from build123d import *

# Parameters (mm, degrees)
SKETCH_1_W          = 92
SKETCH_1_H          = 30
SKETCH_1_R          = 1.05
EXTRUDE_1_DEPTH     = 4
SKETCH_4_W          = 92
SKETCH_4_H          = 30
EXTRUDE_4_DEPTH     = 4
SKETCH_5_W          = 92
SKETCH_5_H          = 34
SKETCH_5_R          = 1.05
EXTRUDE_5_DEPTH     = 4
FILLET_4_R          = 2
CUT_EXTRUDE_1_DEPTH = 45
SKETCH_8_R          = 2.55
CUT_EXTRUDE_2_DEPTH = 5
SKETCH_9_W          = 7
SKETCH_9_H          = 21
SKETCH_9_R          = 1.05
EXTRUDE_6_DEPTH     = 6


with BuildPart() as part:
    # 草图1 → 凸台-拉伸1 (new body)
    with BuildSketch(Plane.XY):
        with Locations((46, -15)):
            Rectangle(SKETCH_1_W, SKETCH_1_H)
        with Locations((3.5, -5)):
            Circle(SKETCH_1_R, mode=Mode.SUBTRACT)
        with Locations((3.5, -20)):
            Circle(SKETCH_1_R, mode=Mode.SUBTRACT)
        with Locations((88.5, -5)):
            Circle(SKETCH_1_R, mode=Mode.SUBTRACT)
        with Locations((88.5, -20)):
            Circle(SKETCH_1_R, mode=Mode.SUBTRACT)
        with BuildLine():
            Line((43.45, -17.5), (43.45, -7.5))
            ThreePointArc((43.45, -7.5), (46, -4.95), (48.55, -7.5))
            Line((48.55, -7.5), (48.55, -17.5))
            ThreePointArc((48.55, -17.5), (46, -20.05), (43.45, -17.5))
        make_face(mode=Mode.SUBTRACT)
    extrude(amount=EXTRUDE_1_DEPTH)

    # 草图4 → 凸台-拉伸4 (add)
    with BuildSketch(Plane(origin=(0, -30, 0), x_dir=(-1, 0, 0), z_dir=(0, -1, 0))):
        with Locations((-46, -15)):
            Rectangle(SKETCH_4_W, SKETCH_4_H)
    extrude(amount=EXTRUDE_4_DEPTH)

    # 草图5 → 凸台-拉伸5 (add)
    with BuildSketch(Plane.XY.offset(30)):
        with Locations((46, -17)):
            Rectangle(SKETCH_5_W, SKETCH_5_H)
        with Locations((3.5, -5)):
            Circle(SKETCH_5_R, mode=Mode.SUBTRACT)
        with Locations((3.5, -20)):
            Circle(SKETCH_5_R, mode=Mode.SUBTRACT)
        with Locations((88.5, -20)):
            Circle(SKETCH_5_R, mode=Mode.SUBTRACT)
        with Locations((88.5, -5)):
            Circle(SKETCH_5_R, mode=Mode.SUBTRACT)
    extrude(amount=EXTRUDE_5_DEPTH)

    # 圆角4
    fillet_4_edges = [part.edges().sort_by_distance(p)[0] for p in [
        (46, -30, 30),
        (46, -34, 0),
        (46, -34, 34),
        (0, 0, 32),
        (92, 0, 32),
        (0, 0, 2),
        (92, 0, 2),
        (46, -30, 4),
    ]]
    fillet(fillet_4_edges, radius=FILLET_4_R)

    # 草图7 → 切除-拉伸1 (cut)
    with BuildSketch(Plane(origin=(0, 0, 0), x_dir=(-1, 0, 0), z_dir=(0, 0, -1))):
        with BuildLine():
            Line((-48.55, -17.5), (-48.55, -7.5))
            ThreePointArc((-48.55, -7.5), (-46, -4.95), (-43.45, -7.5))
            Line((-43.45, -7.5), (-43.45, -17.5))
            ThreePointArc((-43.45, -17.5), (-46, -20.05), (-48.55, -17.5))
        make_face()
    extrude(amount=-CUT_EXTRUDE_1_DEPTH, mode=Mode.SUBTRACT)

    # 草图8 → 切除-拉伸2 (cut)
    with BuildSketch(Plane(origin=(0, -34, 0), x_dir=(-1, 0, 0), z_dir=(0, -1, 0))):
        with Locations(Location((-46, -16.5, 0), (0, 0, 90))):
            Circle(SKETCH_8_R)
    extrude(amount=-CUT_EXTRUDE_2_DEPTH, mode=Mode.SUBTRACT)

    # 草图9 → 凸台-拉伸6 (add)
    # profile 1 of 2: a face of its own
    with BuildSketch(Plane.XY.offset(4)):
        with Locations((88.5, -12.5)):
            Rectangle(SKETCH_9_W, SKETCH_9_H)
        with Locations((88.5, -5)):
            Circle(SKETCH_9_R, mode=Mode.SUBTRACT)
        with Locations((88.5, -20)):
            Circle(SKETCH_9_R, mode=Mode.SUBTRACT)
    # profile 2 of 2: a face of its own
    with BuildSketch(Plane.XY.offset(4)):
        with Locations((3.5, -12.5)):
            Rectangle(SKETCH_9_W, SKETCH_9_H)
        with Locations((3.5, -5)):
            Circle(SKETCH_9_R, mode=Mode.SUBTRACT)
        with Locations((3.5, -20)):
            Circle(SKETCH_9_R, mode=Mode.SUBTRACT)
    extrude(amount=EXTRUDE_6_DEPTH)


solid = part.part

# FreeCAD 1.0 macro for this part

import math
import FreeCAD as App
import Part
import Sketcher
from FreeCAD import Vector
Q = App.Units.Quantity


def edges_at(feature, points):
    """Names of the edges that pass closest to the given points."""
    edges = feature.Shape.Edges
    near = lambda p: min(range(len(edges)), key=lambda i: edges[i].distToShape(Part.Vertex(*p))[0])
    return sorted({f"Edge{near(p) + 1}" for p in points})


def add_polygon(sketch, points):
    """Adds a closed chain of lines whose ends are joined by coincident constraints."""
    first, n = sketch.GeometryCount, len(points)
    for a, b in zip(points, points[1:] + points[:1]):
        sketch.addGeometry(Part.LineSegment(App.Vector(*a, 0), App.Vector(*b, 0)), False)
    for i in range(n):
        sketch.addConstraint(Sketcher.Constraint("Coincident", first + i, 2, first + (i + 1) % n, 1))

doc = App.newDocument("Part")
body = doc.addObject("PartDesign::Body", "Body")

sketch1 = doc.addObject("Sketcher::SketchObject", "Sketch")
body.addObject(sketch1)
sketch1.AttachmentSupport = (doc.XY_Plane, [""])
sketch1.MapMode = "FlatFace"
add_polygon(sketch1, [(0, 0), (0, -30), (92, -30), (92, 0)])
sketch1.addGeometry(Part.Circle(Vector(3.5, -20, 0), Vector(0, 0, 1), 1.1), False)
sketch1.addGeometry(Part.Circle(Vector(88.5, -20, 0), Vector(0, 0, 1), 1.1), False)
sketch1.addGeometry(Part.Circle(Vector(3.5, -5, 0), Vector(0, 0, 1), 1.1), False)
sketch1.addGeometry(Part.ArcOfCircle(Part.Circle(Vector(46, -17.5, 0), Vector(0, 0, 1), 2.5), math.radians(180), math.radians(360)), False)
sketch1.addGeometry(Part.LineSegment(Vector(43.5, -17.5, 0), Vector(43.5, -7.5, 0)), False)
sketch1.addGeometry(Part.ArcOfCircle(Part.Circle(Vector(46, -7.5, 0), Vector(0, 0, 1), 2.5), math.radians(0), math.radians(180)), False)
sketch1.addGeometry(Part.LineSegment(Vector(48.5, -7.5, 0), Vector(48.5, -17.5, 0)), False)
sketch1.addGeometry(Part.Circle(Vector(88.5, -5, 0), Vector(0, 0, 1), 1.1), False)
sketch1.addConstraint([
    Sketcher.Constraint("Tangent", 7, 1, 8, 1),
    Sketcher.Constraint("Tangent", 8, 2, 9, 2),
    Sketcher.Constraint("Tangent", 9, 1, 10, 1),
    Sketcher.Constraint("Tangent", 10, 2, 7, 2),
    Sketcher.Constraint("Vertical", 0),
    Sketcher.Constraint("Horizontal", 1),
    Sketcher.Constraint("Vertical", 2),
    Sketcher.Constraint("Horizontal", 3),
    Sketcher.Constraint("Vertical", 8),
    Sketcher.Constraint("Vertical", 10),
    Sketcher.Constraint("Coincident", 3, 2, -1, 1),
    Sketcher.Constraint("Equal", 4, 5),
    Sketcher.Constraint("Equal", 5, 6),
    Sketcher.Constraint("Equal", 6, 11),
    Sketcher.Constraint("Horizontal", 4, 3, 5, 3),
    Sketcher.Constraint("Horizontal", 6, 3, 11, 3),
    Sketcher.Constraint("Vertical", 4, 3, 6, 3),
    Sketcher.Constraint("Vertical", 5, 3, 11, 3),
    Sketcher.Constraint("Diameter", 4, Q("2.1 mm")),
    Sketcher.Constraint("DistanceX", 1, 1, 1, 2, Q("92 mm")),
    Sketcher.Constraint("DistanceY", 0, 2, 0, 1, Q("30 mm")),
    Sketcher.Constraint("DistanceY", 8, 1, 8, 2, Q("10 mm")),
    Sketcher.Constraint("Radius", 7, Q("2.55 mm")),
    Sketcher.Constraint("DistanceY", 4, 3, -1, 1, Q("20 mm")),
    Sketcher.Constraint("DistanceY", 6, 3, -1, 1, Q("5 mm")),
    Sketcher.Constraint("DistanceX", -1, 1, 7, 3, Q("46 mm")),
    Sketcher.Constraint("DistanceX", 4, 3, 5, 3, Q("85 mm")),
    Sketcher.Constraint("DistanceX", -1, 1, 4, 3, Q("3.5 mm")),
    Sketcher.Constraint("DistanceY", 7, 3, -1, 1, Q("17.5 mm")),
])
pad1 = doc.addObject("PartDesign::Pad", "Pad")
body.addObject(pad1)
pad1.Profile = sketch1
pad1.Length = 4

sketch2 = doc.addObject("Sketcher::SketchObject", "Sketch001")
body.addObject(sketch2)
sketch2.AttachmentSupport = (doc.XZ_Plane, [""])
sketch2.MapMode = "FlatFace"
sketch2.AttachmentOffset = App.Placement(Vector(0, 0, 30), App.Rotation())
add_polygon(sketch2, [(92, 0), (92, 30), (0, 30), (0, 0)])
sketch2.addConstraint([
    Sketcher.Constraint("Vertical", 0),
    Sketcher.Constraint("Horizontal", 1),
    Sketcher.Constraint("Vertical", 2),
    Sketcher.Constraint("Horizontal", 3),
    Sketcher.Constraint("Coincident", 2, 2, -1, 1),
    Sketcher.Constraint("DistanceX", 1, 2, 1, 1, Q("92 mm")),
    Sketcher.Constraint("DistanceY", 0, 1, 0, 2, Q("30 mm")),
])
pad2 = doc.addObject("PartDesign::Pad", "Pad001")
body.addObject(pad2)
pad2.Profile = sketch2
pad2.Length = 4

sketch3 = doc.addObject("Sketcher::SketchObject", "Sketch002")
body.addObject(sketch3)
sketch3.AttachmentSupport = (doc.XY_Plane, [""])
sketch3.MapMode = "FlatFace"
sketch3.AttachmentOffset = App.Placement(Vector(0, 0, 30), App.Rotation())
add_polygon(sketch3, [(0, 0), (0, -34), (92, -34), (92, 0)])
sketch3.addGeometry(Part.Circle(Vector(3.5, -20, 0), Vector(0, 0, 1), 1.1), False)
sketch3.addGeometry(Part.Circle(Vector(88.5, -20, 0), Vector(0, 0, 1), 1.1), False)
sketch3.addGeometry(Part.Circle(Vector(3.5, -5, 0), Vector(0, 0, 1), 1.1), False)
sketch3.addGeometry(Part.Circle(Vector(88.5, -5, 0), Vector(0, 0, 1), 1.1), False)
sketch3.addConstraint([
    Sketcher.Constraint("Vertical", 0),
    Sketcher.Constraint("Horizontal", 1),
    Sketcher.Constraint("Vertical", 2),
    Sketcher.Constraint("Horizontal", 3),
    Sketcher.Constraint("Coincident", 3, 2, -1, 1),
    Sketcher.Constraint("Equal", 4, 5),
    Sketcher.Constraint("Equal", 5, 6),
    Sketcher.Constraint("Equal", 6, 7),
    Sketcher.Constraint("Horizontal", 4, 3, 5, 3),
    Sketcher.Constraint("Horizontal", 6, 3, 7, 3),
    Sketcher.Constraint("Vertical", 4, 3, 6, 3),
    Sketcher.Constraint("Vertical", 5, 3, 7, 3),
    Sketcher.Constraint("Diameter", 4, Q("2.1 mm")),
    Sketcher.Constraint("DistanceX", 1, 1, 1, 2, Q("92 mm")),
    Sketcher.Constraint("DistanceY", 0, 2, 0, 1, Q("34 mm")),
    Sketcher.Constraint("DistanceY", 4, 3, -1, 1, Q("20 mm")),
    Sketcher.Constraint("DistanceY", 6, 3, -1, 1, Q("5 mm")),
    Sketcher.Constraint("DistanceX", 4, 3, 5, 3, Q("85 mm")),
    Sketcher.Constraint("DistanceX", -1, 1, 4, 3, Q("3.5 mm")),
])
pad3 = doc.addObject("PartDesign::Pad", "Pad002")
body.addObject(pad3)
pad3.Profile = sketch3
pad3.Length = 4
doc.recompute()

fillet = doc.addObject("PartDesign::Fillet", "Fillet")
body.addObject(fillet)
fillet.Base = (pad3, edges_at(pad3, [
    (46, -30, 30),
    (46, -34, 0),
    (46, -34, 34),
    (0, 0, 32),
    (92, 0, 32),
    (0, 0, 2),
    (92, 0, 2),
    (46, -30, 4),
]))
fillet.Radius = 2

sketch4 = doc.addObject("Sketcher::SketchObject", "Sketch003")
body.addObject(sketch4)
sketch4.AttachmentSupport = (doc.XY_Plane, [""])
sketch4.MapMode = "FlatFace"
sketch4.addGeometry([
    Part.LineSegment(Vector(48.5, -7.5, 0), Vector(48.5, -17.5, 0)),
    Part.ArcOfCircle(Part.Circle(Vector(46, -17.5, 0), Vector(0, 0, 1), 2.5), math.radians(180), math.radians(360)),
    Part.LineSegment(Vector(43.5, -17.5, 0), Vector(43.5, -7.5, 0)),
    Part.ArcOfCircle(Part.Circle(Vector(46, -7.5, 0), Vector(0, 0, 1), 2.5), math.radians(0), math.radians(180)),
], False)
sketch4.addConstraint([
    Sketcher.Constraint("Tangent", 0, 2, 1, 2),
    Sketcher.Constraint("Tangent", 1, 1, 2, 1),
    Sketcher.Constraint("Tangent", 2, 2, 3, 2),
    Sketcher.Constraint("Tangent", 3, 1, 0, 1),
    Sketcher.Constraint("Vertical", 0),
    Sketcher.Constraint("Vertical", 2),
    Sketcher.Constraint("DistanceY", 0, 2, 0, 1, Q("10 mm")),
    Sketcher.Constraint("Radius", 1, Q("2.55 mm")),
    Sketcher.Constraint("DistanceX", -1, 1, 1, 3, Q("46 mm")),
    Sketcher.Constraint("DistanceY", 1, 3, -1, 1, Q("17.5 mm")),
])
pocket1 = doc.addObject("PartDesign::Pocket", "Pocket")
body.addObject(pocket1)
pocket1.Profile = sketch4
pocket1.Length = 45
pocket1.Reversed = True

sketch5 = doc.addObject("Sketcher::SketchObject", "Sketch004")
body.addObject(sketch5)
sketch5.AttachmentSupport = (doc.XZ_Plane, [""])
sketch5.MapMode = "FlatFace"
sketch5.AttachmentOffset = App.Placement(Vector(0, 0, 34), App.Rotation())
sketch5.addGeometry(Part.Circle(Vector(46, 16.5, 0), Vector(0, 0, 1), 2.5), False)
sketch5.addConstraint([
    Sketcher.Constraint("Diameter", 0, Q("5.1 mm")),
    Sketcher.Constraint("DistanceX", -1, 1, 0, 3, Q("46 mm")),
    Sketcher.Constraint("DistanceY", -1, 1, 0, 3, Q("16.5 mm")),
])
pocket2 = doc.addObject("PartDesign::Pocket", "Pocket001")
body.addObject(pocket2)
pocket2.Profile = sketch5
pocket2.Length = 5

sketch6 = doc.addObject("Sketcher::SketchObject", "Sketch005")
body.addObject(sketch6)
sketch6.AttachmentSupport = (doc.XY_Plane, [""])
sketch6.MapMode = "FlatFace"
sketch6.AttachmentOffset = App.Placement(Vector(0, 0, 4), App.Rotation())
add_polygon(sketch6, [(85, -2), (85, -23), (92, -23), (92, -2)])
sketch6.addGeometry(Part.Circle(Vector(88.5, -20, 0), Vector(0, 0, 1), 1.1), False)
sketch6.addGeometry(Part.Circle(Vector(88.5, -5, 0), Vector(0, 0, 1), 1.1), False)
add_polygon(sketch6, [(0, -2), (0, -23), (7, -23), (7, -2)])
sketch6.addGeometry(Part.Circle(Vector(3.5, -20, 0), Vector(0, 0, 1), 1.1), False)
sketch6.addGeometry(Part.Circle(Vector(3.5, -5, 0), Vector(0, 0, 1), 1.1), False)
sketch6.addConstraint([
    Sketcher.Constraint("Vertical", 0),
    Sketcher.Constraint("Horizontal", 1),
    Sketcher.Constraint("Vertical", 2),
    Sketcher.Constraint("Horizontal", 3),
    Sketcher.Constraint("Vertical", 6),
    Sketcher.Constraint("Horizontal", 7),
    Sketcher.Constraint("Vertical", 8),
    Sketcher.Constraint("Horizontal", 9),
    Sketcher.Constraint("Equal", 4, 5),
    Sketcher.Constraint("Equal", 5, 10),
    Sketcher.Constraint("Equal", 10, 11),
    Sketcher.Constraint("PointOnObject", 6, 2, -2),
    Sketcher.Constraint("Horizontal", 4, 3, 10, 3),
    Sketcher.Constraint("Horizontal", 5, 3, 11, 3),
    Sketcher.Constraint("Horizontal", 1, 2, 6, 2),
    Sketcher.Constraint("Horizontal", 3, 2, 8, 2),
    Sketcher.Constraint("Vertical", 4, 3, 5, 3),
    Sketcher.Constraint("Vertical", 10, 3, 11, 3),
    Sketcher.Constraint("Equal", 3, 7),
    Sketcher.Constraint("Diameter", 4, Q("2.1 mm")),
    Sketcher.Constraint("DistanceX", 1, 1, 1, 2, Q("7 mm")),
    Sketcher.Constraint("DistanceY", 0, 2, 0, 1, Q("21 mm")),
    Sketcher.Constraint("DistanceY", 4, 3, -1, 1, Q("20 mm")),
    Sketcher.Constraint("DistanceY", 5, 3, -1, 1, Q("5 mm")),
    Sketcher.Constraint("DistanceX", -1, 1, 0, 2, Q("85 mm")),
    Sketcher.Constraint("DistanceY", 0, 2, -1, 1, Q("23 mm")),
    Sketcher.Constraint("DistanceX", 10, 3, 4, 3, Q("85 mm")),
    Sketcher.Constraint("DistanceX", -1, 1, 4, 3, Q("88.5 mm")),
])
pad4 = doc.addObject("PartDesign::Pad", "Pad003")
body.addObject(pad4)
pad4.Profile = sketch6
pad4.Length = 6

doc.recompute()
